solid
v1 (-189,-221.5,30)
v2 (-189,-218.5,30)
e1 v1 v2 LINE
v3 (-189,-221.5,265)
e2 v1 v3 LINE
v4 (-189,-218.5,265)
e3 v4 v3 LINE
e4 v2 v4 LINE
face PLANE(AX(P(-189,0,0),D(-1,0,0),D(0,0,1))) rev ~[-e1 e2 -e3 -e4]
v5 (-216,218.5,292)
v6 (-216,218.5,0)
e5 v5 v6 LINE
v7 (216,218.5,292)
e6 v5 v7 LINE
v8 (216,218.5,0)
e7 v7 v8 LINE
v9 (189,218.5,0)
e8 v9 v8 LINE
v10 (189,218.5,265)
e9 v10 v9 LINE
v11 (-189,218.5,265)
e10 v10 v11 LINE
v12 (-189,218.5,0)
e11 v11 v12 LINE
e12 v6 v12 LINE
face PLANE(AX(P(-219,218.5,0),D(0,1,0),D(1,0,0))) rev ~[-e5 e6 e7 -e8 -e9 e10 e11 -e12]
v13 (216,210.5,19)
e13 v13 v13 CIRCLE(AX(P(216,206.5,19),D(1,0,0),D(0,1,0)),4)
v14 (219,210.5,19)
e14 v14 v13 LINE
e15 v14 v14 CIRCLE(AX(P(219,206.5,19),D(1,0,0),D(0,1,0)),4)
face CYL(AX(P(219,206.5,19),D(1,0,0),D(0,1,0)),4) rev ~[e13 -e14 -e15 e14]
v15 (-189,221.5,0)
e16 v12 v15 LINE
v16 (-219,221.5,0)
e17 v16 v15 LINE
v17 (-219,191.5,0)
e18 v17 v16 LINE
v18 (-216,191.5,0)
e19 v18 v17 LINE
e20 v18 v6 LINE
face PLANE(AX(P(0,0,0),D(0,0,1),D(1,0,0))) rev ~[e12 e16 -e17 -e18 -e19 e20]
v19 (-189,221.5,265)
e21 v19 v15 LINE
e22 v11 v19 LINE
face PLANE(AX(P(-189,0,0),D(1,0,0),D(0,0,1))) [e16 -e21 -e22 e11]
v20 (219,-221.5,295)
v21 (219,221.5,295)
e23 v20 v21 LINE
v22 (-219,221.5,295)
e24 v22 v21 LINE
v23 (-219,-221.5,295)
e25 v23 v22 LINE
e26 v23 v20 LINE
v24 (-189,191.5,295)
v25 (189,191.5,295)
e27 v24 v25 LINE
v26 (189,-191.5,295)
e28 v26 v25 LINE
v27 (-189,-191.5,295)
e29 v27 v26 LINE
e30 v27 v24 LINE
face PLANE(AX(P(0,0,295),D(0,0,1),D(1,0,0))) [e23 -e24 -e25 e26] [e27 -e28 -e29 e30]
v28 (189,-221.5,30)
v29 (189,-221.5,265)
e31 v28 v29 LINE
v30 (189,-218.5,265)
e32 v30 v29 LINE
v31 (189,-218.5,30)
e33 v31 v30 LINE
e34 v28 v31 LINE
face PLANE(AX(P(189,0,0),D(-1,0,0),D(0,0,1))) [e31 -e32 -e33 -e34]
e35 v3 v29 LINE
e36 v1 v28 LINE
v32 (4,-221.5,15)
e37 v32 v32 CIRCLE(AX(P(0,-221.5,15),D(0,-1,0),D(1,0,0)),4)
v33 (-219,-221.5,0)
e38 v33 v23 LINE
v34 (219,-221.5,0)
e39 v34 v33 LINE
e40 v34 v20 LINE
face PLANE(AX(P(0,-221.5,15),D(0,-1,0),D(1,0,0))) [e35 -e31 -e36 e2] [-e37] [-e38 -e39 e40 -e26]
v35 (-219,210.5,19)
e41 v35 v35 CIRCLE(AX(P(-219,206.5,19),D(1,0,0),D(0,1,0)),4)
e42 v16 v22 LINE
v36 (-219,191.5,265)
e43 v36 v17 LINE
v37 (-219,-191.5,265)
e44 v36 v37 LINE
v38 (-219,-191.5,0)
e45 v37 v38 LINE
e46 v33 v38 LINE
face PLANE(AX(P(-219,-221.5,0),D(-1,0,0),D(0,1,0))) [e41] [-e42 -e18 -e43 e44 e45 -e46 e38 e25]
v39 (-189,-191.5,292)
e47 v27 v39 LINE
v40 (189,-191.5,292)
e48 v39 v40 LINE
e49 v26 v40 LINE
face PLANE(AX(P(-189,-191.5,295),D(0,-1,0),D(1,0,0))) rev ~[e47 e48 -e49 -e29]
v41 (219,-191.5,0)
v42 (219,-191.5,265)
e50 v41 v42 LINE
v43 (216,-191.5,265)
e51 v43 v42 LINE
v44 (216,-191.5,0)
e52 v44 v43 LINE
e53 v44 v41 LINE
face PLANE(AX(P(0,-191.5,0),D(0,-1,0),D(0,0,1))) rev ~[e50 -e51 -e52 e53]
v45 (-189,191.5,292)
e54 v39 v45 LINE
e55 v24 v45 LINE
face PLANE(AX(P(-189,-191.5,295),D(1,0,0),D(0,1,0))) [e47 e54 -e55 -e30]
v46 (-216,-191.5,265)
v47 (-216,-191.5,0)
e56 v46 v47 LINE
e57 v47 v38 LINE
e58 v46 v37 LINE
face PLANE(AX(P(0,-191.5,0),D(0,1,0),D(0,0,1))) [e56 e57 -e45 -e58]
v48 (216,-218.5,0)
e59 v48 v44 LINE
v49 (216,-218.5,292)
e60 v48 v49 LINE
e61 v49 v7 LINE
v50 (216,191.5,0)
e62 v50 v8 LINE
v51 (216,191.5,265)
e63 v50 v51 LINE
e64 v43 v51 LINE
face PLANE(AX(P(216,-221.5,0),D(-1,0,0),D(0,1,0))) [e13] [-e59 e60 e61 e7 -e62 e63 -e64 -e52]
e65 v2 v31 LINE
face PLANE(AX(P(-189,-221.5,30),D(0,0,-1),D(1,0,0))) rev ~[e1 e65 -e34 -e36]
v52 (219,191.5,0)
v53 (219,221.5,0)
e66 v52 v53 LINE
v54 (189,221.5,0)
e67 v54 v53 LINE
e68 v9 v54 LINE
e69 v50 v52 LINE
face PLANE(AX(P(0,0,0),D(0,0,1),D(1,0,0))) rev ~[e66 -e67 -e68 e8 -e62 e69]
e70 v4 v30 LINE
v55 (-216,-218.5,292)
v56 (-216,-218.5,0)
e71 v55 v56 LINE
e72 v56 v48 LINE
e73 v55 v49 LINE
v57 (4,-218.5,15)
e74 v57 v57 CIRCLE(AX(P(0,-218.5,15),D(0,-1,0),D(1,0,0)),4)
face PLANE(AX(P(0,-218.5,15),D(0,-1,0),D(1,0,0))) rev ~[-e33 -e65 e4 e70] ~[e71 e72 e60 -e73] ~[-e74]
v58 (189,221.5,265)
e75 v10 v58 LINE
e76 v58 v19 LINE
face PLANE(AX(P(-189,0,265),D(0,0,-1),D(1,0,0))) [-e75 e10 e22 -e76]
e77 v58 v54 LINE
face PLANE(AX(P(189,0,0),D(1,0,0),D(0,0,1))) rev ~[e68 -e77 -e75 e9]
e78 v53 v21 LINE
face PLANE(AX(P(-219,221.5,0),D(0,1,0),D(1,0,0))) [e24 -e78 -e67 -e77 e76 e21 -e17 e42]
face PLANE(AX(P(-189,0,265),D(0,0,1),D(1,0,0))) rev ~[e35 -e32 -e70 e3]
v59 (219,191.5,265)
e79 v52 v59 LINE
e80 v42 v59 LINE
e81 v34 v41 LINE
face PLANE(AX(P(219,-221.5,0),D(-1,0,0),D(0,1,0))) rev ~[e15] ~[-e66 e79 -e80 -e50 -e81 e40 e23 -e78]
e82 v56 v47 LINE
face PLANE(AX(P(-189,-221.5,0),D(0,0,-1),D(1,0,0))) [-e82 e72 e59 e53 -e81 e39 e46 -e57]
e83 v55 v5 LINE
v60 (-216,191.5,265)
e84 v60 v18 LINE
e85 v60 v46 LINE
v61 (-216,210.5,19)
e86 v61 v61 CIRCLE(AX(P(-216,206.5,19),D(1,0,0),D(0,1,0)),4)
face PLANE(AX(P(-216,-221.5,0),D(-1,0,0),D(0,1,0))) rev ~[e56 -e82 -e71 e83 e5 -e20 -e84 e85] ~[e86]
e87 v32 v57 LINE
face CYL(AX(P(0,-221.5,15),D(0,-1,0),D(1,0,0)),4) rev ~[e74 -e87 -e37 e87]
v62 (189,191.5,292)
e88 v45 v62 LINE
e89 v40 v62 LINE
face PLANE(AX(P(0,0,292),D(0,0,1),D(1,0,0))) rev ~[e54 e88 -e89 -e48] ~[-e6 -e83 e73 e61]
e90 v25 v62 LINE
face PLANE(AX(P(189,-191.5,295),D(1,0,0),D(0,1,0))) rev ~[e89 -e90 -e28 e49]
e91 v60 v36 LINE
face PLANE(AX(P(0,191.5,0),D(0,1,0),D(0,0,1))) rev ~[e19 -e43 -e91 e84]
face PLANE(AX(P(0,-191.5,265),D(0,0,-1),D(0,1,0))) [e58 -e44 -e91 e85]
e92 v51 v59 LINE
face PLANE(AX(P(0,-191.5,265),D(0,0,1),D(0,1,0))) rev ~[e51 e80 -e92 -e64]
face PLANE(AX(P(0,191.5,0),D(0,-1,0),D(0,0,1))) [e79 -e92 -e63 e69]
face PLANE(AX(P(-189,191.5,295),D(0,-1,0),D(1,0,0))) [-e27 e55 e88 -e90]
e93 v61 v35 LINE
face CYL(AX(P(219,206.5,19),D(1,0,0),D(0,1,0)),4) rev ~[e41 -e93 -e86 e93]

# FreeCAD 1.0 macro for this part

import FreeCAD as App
import Part
import Sketcher
from FreeCAD import Vector


def faces_at(feature, points):
    """Names of the faces that lie closest to the given points."""
    faces = feature.Shape.Faces
    near = lambda p: min(range(len(faces)), key=lambda i: faces[i].distToShape(Part.Vertex(*p))[0])
    return sorted({f"Face{near(p) + 1}" for p in points})

doc = App.newDocument("Part")
params = doc.addObject("Spreadsheet::Sheet", "Params")
for row, (alias, value) in enumerate([
    ("sketch1_width", "438 mm"),
    ("sketch1_height", "443 mm"),
    ("pad1_length", "295 mm"),
    ("thickness_wall", "3 mm"),
    ("sketch2_width", "378 mm"),
    ("sketch2_height", "265 mm"),
    ("sketch3_width", "383 mm"),
    ("sketch3_height", "265 mm"),
    ("sketch4_width", "378 mm"),
    ("sketch4_height", "383 mm"),
    ("sketch5_diameter", "8 mm"),
    ("sketch5_width", "378 mm"),
    ("sketch5_height", "30 mm"),
    ("pad2_length", "3 mm"),
    ("sketch6_diameter", "8 mm"),
], start=1):
    params.set(f"A{row}", alias)
    params.set(f"B{row}", "=" + value)
    params.setAlias(f"B{row}", alias)

body = doc.addObject("PartDesign::Body", "Body")

sketch1 = body.newObject("Sketcher::SketchObject", "Sketch")
sketch1.AttachmentSupport = (doc.getObject("XY_Plane"), [""])
sketch1.MapMode = "FlatFace"
sketch1.addGeometry([
    Part.LineSegment(Vector(-219, 222, 0), Vector(-219, -222, 0)),
    Part.LineSegment(Vector(-219, -222, 0), Vector(219, -222, 0)),
    Part.LineSegment(Vector(219, -222, 0), Vector(219, 222, 0)),
    Part.LineSegment(Vector(219, 222, 0), Vector(-219, 222, 0)),
], False)
sketch1.addConstraint([
    Sketcher.Constraint("Coincident", 0, 2, 1, 1),
    Sketcher.Constraint("Coincident", 1, 2, 2, 1),
    Sketcher.Constraint("Coincident", 2, 2, 3, 1),
    Sketcher.Constraint("Coincident", 3, 2, 0, 1),
    Sketcher.Constraint("Vertical", 0),
    Sketcher.Constraint("Horizontal", 1),
    Sketcher.Constraint("Vertical", 2),
    Sketcher.Constraint("Horizontal", 3),
    Sketcher.Constraint("Symmetric", 0, 2, 2, 2, -1, 1),
    Sketcher.Constraint("DistanceX", 1, 1, 1, 2, 438.0),
    Sketcher.Constraint("DistanceY", 0, 2, 0, 1, 443.0),
])
sketch1.setExpression("Constraints[9]", "Params.sketch1_width")
sketch1.setExpression("Constraints[10]", "Params.sketch1_height")
pad1 = body.newObject("PartDesign::Pad", "Pad")
pad1.Profile = sketch1
pad1.setExpression("Length", "Params.pad1_length")
doc.recompute()

thickness = body.newObject("PartDesign::Thickness", "Thickness")
thickness.Base = (pad1, faces_at(pad1, [(0, 0, 0)]))
thickness.setExpression("Value", "Params.thickness_wall")
thickness.Reversed = True
thickness.Join = "Arc"

sketch2 = body.newObject("Sketcher::SketchObject", "Sketch001")
sketch2.AttachmentSupport = (doc.getObject("XZ_Plane"), [""])
sketch2.MapMode = "FlatFace"
sketch2.addGeometry([
    Part.LineSegment(Vector(-189, 265, 0), Vector(-189, 0, 0)),
    Part.LineSegment(Vector(-189, 0, 0), Vector(189, 0, 0)),
    Part.LineSegment(Vector(189, 0, 0), Vector(189, 265, 0)),
    Part.LineSegment(Vector(189, 265, 0), Vector(-189, 265, 0)),
], False)
sketch2.addConstraint([
    Sketcher.Constraint("Coincident", 0, 2, 1, 1),
    Sketcher.Constraint("Coincident", 1, 2, 2, 1),
    Sketcher.Constraint("Coincident", 2, 2, 3, 1),
    Sketcher.Constraint("Coincident", 3, 2, 0, 1),
    Sketcher.Constraint("Vertical", 0),
    Sketcher.Constraint("Horizontal", 1),
    Sketcher.Constraint("Vertical", 2),
    Sketcher.Constraint("Horizontal", 3),
    Sketcher.Constraint("Symmetric", 0, 2, 1, 2, -1, 1),
    Sketcher.Constraint("DistanceX", 1, 1, 1, 2, 378.0),
    Sketcher.Constraint("DistanceY", 0, 2, 0, 1, 265.0),
])
sketch2.setExpression("Constraints[9]", "Params.sketch2_width")
sketch2.setExpression("Constraints[10]", "Params.sketch2_height")
pocket1 = body.newObject("PartDesign::Pocket", "Pocket")
pocket1.Profile = sketch2
pocket1.Type = "ThroughAll"
pocket1.Midplane = True

sketch3 = body.newObject("Sketcher::SketchObject", "Sketch002")
sketch3.AttachmentSupport = (doc.getObject("YZ_Plane"), [""])
sketch3.MapMode = "FlatFace"
sketch3.addGeometry([
    Part.LineSegment(Vector(-192, 265, 0), Vector(-192, 0, 0)),
    Part.LineSegment(Vector(-192, 0, 0), Vector(192, 0, 0)),
    Part.LineSegment(Vector(192, 0, 0), Vector(192, 265, 0)),
    Part.LineSegment(Vector(192, 265, 0), Vector(-192, 265, 0)),
], False)
sketch3.addConstraint([
    Sketcher.Constraint("Coincident", 0, 2, 1, 1),
    Sketcher.Constraint("Coincident", 1, 2, 2, 1),
    Sketcher.Constraint("Coincident", 2, 2, 3, 1),
    Sketcher.Constraint("Coincident", 3, 2, 0, 1),
    Sketcher.Constraint("Vertical", 0),
    Sketcher.Constraint("Horizontal", 1),
    Sketcher.Constraint("Vertical", 2),
    Sketcher.Constraint("Horizontal", 3),
    Sketcher.Constraint("Symmetric", 0, 2, 1, 2, -1, 1),
    Sketcher.Constraint("DistanceX", 1, 1, 1, 2, 383.0),
    Sketcher.Constraint("DistanceY", 0, 2, 0, 1, 265.0),
])
sketch3.setExpression("Constraints[9]", "Params.sketch3_width")
sketch3.setExpression("Constraints[10]", "Params.sketch3_height")
pocket2 = body.newObject("PartDesign::Pocket", "Pocket001")
pocket2.Profile = sketch3
pocket2.Type = "ThroughAll"
pocket2.Midplane = True

sketch4 = body.newObject("Sketcher::SketchObject", "Sketch003")
sketch4.AttachmentSupport = (doc.getObject("XY_Plane"), [""])
sketch4.MapMode = "FlatFace"
sketch4.AttachmentOffset = App.Placement(Vector(0, 0, 295), App.Rotation())
sketch4.addGeometry([
    Part.LineSegment(Vector(-189, 192, 0), Vector(-189, -192, 0)),
    Part.LineSegment(Vector(-189, -192, 0), Vector(189, -192, 0)),
    Part.LineSegment(Vector(189, -192, 0), Vector(189, 192, 0)),
    Part.LineSegment(Vector(189, 192, 0), Vector(-189, 192, 0)),
], False)
sketch4.addConstraint([
    Sketcher.Constraint("Coincident", 0, 2, 1, 1),
    Sketcher.Constraint("Coincident", 1, 2, 2, 1),
    Sketcher.Constraint("Coincident", 2, 2, 3, 1),
    Sketcher.Constraint("Coincident", 3, 2, 0, 1),
    Sketcher.Constraint("Vertical", 0),
    Sketcher.Constraint("Horizontal", 1),
    Sketcher.Constraint("Vertical", 2),
    Sketcher.Constraint("Horizontal", 3),
    Sketcher.Constraint("Symmetric", 0, 2, 2, 2, -1, 1),
    Sketcher.Constraint("DistanceX", 1, 1, 1, 2, 378.0),
    Sketcher.Constraint("DistanceY", 0, 2, 0, 1, 383.0),
])
sketch4.setExpression("Constraints[9]", "Params.sketch4_width")
sketch4.setExpression("Constraints[10]", "Params.sketch4_height")
pocket3 = body.newObject("PartDesign::Pocket", "Pocket002")
pocket3.Profile = sketch4
pocket3.Type = "ThroughAll"

sketch5 = body.newObject("Sketcher::SketchObject", "Sketch004")
sketch5.AttachmentSupport = (doc.getObject("XZ_Plane"), [""])
sketch5.MapMode = "FlatFace"
sketch5.AttachmentOffset = App.Placement(Vector(0, 0, 221.5), App.Rotation())
sketch5.addGeometry([
    Part.LineSegment(Vector(-189, 30, 0), Vector(-189, 0, 0)),
    Part.LineSegment(Vector(-189, 0, 0), Vector(189, 0, 0)),
    Part.LineSegment(Vector(189, 0, 0), Vector(189, 30, 0)),
    Part.LineSegment(Vector(189, 30, 0), Vector(-189, 30, 0)),
    Part.Circle(Vector(0, 15, 0), Vector(0, 0, 1), 4),
], False)
sketch5.addConstraint([
    Sketcher.Constraint("Coincident", 0, 2, 1, 1),
    Sketcher.Constraint("Coincident", 1, 2, 2, 1),
    Sketcher.Constraint("Coincident", 2, 2, 3, 1),
    Sketcher.Constraint("Coincident", 3, 2, 0, 1),
    Sketcher.Constraint("Vertical", 0),
    Sketcher.Constraint("Horizontal", 1),
    Sketcher.Constraint("Vertical", 2),
    Sketcher.Constraint("Horizontal", 3),
    Sketcher.Constraint("Symmetric", 0, 2, 1, 2, -1, 1),
    Sketcher.Constraint("PointOnObject", 4, 3, -2),
    Sketcher.Constraint("Diameter", 4, 8.0),
    Sketcher.Constraint("DistanceX", 1, 1, 1, 2, 378.0),
    Sketcher.Constraint("DistanceY", 0, 2, 0, 1, 30.0),
    Sketcher.Constraint("DistanceY", -1, 1, 4, 3, 15.0),
])
sketch5.setExpression("Constraints[10]", "Params.sketch5_diameter")
sketch5.setExpression("Constraints[11]", "Params.sketch5_width")
sketch5.setExpression("Constraints[12]", "Params.sketch5_height")
pad2 = body.newObject("PartDesign::Pad", "Pad001")
pad2.Profile = sketch5
pad2.setExpression("Length", "Params.pad2_length")
pad2.Reversed = True

sketch6 = body.newObject("Sketcher::SketchObject", "Sketch005")
sketch6.AttachmentSupport = (doc.getObject("YZ_Plane"), [""])
sketch6.MapMode = "FlatFace"
sketch6.AttachmentOffset = App.Placement(Vector(0, 0, 219), App.Rotation())
sketch6.addGeometry(Part.Circle(Vector(206.5, 19, 0), Vector(0, 0, 1), 4), False)
sketch6.addConstraint([
    Sketcher.Constraint("Diameter", 0, 8.0),
    Sketcher.Constraint("DistanceY", -1, 1, 0, 3, 19.0),
    Sketcher.Constraint("DistanceX", -1, 1, 0, 3, 206.5),
])
sketch6.setExpression("Constraints[0]", "Params.sketch6_diameter")
pocket4 = body.newObject("PartDesign::Pocket", "Pocket003")
pocket4.Profile = sketch6
pocket4.Type = "ThroughAll"

doc.recompute()
